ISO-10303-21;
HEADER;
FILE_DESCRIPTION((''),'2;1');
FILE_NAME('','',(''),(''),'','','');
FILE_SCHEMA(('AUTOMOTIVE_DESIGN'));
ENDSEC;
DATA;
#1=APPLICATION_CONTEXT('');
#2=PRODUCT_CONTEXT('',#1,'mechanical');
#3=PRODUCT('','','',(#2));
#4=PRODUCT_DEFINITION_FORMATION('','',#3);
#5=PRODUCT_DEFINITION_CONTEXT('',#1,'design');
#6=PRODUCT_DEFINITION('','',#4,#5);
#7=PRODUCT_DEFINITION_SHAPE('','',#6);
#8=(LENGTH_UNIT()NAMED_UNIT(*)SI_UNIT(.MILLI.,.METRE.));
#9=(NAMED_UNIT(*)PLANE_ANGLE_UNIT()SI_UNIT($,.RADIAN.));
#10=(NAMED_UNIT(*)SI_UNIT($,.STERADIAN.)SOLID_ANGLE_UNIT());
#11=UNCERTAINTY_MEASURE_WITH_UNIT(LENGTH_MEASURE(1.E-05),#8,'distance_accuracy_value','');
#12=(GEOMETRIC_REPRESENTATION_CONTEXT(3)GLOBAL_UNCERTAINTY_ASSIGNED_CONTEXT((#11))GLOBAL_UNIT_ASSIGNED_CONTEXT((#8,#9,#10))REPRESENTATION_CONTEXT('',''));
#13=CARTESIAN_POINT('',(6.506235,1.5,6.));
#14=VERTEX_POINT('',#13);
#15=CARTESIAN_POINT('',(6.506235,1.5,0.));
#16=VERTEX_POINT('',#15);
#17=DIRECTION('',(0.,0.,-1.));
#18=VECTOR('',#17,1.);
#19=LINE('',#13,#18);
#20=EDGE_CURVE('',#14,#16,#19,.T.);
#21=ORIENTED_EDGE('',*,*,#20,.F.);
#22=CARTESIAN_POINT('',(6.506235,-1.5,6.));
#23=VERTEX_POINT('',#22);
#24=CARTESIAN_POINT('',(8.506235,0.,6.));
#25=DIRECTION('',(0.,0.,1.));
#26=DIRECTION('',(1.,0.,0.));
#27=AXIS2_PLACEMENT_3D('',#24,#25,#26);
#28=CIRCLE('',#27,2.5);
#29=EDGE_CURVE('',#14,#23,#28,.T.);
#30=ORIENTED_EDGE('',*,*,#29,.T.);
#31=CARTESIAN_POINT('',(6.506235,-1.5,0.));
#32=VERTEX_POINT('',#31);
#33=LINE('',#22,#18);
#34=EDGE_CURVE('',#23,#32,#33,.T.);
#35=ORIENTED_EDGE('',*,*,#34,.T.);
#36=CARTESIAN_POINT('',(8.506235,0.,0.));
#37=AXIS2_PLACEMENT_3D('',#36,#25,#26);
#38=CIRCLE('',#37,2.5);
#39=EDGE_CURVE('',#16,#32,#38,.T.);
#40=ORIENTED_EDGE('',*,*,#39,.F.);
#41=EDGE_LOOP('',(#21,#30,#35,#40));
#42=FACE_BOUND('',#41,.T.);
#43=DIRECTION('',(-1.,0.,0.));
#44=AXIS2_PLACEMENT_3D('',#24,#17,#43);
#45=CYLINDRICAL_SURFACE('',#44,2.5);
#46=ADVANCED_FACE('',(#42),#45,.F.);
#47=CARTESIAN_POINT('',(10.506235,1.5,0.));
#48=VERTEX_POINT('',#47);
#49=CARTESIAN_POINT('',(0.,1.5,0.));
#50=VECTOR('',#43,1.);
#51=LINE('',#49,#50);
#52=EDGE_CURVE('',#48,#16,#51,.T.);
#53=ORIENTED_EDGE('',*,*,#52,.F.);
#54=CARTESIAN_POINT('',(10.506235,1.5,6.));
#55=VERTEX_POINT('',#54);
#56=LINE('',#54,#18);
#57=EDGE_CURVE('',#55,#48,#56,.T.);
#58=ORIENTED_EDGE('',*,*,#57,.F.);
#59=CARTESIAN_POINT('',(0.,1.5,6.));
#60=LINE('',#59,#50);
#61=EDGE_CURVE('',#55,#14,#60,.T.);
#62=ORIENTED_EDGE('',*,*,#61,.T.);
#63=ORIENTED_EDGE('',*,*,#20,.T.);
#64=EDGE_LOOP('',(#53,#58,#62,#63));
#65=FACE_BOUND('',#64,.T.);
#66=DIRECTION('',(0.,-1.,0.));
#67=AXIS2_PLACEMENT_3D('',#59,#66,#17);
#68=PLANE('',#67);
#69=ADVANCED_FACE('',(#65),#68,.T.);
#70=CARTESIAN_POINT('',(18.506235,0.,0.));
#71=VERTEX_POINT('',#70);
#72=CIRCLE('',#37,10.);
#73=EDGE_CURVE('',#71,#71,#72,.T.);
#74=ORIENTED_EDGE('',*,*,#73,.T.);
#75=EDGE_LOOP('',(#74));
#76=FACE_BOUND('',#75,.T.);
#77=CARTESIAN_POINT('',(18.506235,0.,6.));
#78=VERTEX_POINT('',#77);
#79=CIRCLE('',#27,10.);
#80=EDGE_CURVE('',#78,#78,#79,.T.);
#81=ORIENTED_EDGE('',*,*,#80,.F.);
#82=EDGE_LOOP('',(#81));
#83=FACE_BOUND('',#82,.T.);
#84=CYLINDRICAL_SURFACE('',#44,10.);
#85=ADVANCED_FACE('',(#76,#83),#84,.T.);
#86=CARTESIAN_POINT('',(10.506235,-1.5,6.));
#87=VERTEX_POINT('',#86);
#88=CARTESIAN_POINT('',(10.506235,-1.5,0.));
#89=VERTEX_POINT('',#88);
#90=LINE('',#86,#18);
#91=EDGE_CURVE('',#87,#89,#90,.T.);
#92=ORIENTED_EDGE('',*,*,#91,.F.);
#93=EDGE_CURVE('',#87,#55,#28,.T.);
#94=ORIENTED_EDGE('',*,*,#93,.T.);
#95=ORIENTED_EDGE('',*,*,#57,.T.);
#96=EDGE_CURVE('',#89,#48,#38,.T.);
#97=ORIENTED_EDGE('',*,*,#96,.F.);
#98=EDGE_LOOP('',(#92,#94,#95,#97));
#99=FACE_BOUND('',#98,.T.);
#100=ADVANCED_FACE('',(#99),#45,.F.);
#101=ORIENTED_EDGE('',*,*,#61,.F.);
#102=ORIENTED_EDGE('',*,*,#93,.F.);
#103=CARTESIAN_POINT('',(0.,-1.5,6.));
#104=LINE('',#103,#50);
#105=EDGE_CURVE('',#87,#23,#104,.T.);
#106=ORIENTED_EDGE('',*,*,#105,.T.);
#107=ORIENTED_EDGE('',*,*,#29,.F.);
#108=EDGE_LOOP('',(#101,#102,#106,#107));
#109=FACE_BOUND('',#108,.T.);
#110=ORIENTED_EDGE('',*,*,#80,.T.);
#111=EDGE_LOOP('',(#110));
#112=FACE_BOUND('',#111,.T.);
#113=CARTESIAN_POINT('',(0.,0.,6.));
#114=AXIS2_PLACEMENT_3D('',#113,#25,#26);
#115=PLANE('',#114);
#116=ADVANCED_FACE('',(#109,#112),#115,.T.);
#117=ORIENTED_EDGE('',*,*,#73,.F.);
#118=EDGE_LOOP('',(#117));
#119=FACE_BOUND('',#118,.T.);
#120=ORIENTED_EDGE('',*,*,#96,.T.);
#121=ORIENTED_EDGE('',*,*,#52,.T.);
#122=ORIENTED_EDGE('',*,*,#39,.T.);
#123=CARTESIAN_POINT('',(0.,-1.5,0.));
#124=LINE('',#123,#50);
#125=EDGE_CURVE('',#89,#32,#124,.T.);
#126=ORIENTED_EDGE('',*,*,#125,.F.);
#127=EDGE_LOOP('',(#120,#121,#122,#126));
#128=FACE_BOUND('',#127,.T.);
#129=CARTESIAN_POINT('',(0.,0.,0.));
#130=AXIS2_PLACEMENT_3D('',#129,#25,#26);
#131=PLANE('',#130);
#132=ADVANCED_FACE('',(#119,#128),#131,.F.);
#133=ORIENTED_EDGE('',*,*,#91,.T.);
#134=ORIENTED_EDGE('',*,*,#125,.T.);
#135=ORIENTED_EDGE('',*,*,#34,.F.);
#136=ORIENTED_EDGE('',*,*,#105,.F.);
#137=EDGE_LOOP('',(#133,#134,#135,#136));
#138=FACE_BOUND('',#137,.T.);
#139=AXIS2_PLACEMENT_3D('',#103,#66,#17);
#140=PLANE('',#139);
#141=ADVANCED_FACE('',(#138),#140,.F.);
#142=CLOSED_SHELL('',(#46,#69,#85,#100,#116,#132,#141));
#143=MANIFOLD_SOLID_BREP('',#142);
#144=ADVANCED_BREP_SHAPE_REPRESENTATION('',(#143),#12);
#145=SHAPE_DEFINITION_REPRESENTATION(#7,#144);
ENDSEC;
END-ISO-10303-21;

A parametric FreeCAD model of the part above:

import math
import FreeCAD as App
import Part
import Sketcher
from FreeCAD import Vector

doc = App.newDocument("Part")
body = doc.addObject("PartDesign::Body", "Body")

# Sketch on XY plane
sketch1 = body.newObject("Sketcher::SketchObject", "Sketch")
sketch1.AttachmentSupport = (doc.getObject("XY_Plane"), [""])
sketch1.MapMode = "FlatFace"
sketch1.addGeometry([
    Part.Circle(Vector(8.5, 0, 0), Vector(0, 0, 1), 10),  # 0
    Part.ArcOfCircle(Part.Circle(Vector(8.5, 0, 0), Vector(0, 0, 1), 2.5), math.radians(143), math.radians(217)),  # 1
    Part.LineSegment(Vector(6.5, 1.5, 0), Vector(10.5, 1.5, 0)),  # 2
    Part.ArcOfCircle(Part.Circle(Vector(8.5, 0, 0), Vector(0, 0, 1), 2.5), math.radians(-37), math.radians(37)),  # 3
    Part.LineSegment(Vector(10.5, -1.5, 0), Vector(6.5, -1.5, 0)),  # 4
], False)
sketch1.addConstraint([
    Sketcher.Constraint("Coincident", 1, 1, 2, 1),
    Sketcher.Constraint("Coincident", 2, 2, 3, 2),
    Sketcher.Constraint("Coincident", 3, 1, 4, 1),
    Sketcher.Constraint("Coincident", 4, 2, 1, 2),
    Sketcher.Constraint("Horizontal", 2),
    Sketcher.Constraint("Horizontal", 4),
    Sketcher.Constraint("Coincident", 1, 3, 0, 3),
    Sketcher.Constraint("Coincident", 3, 3, 0, 3),
    Sketcher.Constraint("Equal", 1, 3),
    Sketcher.Constraint("Symmetric", 2, 2, 3, 1, -1),
    Sketcher.Constraint("Diameter", 0, 20.0),
    Sketcher.Constraint("Radius", 1, 2.5),
    Sketcher.Constraint("DistanceX", 2, 1, 2, 2, 4.0),
    Sketcher.Constraint("DistanceX", -1, 1, 0, 3, 8.506235),
])
pad1 = body.newObject("PartDesign::Pad", "Pad")
pad1.Profile = sketch1
pad1.Length = 6

doc.recompute()
